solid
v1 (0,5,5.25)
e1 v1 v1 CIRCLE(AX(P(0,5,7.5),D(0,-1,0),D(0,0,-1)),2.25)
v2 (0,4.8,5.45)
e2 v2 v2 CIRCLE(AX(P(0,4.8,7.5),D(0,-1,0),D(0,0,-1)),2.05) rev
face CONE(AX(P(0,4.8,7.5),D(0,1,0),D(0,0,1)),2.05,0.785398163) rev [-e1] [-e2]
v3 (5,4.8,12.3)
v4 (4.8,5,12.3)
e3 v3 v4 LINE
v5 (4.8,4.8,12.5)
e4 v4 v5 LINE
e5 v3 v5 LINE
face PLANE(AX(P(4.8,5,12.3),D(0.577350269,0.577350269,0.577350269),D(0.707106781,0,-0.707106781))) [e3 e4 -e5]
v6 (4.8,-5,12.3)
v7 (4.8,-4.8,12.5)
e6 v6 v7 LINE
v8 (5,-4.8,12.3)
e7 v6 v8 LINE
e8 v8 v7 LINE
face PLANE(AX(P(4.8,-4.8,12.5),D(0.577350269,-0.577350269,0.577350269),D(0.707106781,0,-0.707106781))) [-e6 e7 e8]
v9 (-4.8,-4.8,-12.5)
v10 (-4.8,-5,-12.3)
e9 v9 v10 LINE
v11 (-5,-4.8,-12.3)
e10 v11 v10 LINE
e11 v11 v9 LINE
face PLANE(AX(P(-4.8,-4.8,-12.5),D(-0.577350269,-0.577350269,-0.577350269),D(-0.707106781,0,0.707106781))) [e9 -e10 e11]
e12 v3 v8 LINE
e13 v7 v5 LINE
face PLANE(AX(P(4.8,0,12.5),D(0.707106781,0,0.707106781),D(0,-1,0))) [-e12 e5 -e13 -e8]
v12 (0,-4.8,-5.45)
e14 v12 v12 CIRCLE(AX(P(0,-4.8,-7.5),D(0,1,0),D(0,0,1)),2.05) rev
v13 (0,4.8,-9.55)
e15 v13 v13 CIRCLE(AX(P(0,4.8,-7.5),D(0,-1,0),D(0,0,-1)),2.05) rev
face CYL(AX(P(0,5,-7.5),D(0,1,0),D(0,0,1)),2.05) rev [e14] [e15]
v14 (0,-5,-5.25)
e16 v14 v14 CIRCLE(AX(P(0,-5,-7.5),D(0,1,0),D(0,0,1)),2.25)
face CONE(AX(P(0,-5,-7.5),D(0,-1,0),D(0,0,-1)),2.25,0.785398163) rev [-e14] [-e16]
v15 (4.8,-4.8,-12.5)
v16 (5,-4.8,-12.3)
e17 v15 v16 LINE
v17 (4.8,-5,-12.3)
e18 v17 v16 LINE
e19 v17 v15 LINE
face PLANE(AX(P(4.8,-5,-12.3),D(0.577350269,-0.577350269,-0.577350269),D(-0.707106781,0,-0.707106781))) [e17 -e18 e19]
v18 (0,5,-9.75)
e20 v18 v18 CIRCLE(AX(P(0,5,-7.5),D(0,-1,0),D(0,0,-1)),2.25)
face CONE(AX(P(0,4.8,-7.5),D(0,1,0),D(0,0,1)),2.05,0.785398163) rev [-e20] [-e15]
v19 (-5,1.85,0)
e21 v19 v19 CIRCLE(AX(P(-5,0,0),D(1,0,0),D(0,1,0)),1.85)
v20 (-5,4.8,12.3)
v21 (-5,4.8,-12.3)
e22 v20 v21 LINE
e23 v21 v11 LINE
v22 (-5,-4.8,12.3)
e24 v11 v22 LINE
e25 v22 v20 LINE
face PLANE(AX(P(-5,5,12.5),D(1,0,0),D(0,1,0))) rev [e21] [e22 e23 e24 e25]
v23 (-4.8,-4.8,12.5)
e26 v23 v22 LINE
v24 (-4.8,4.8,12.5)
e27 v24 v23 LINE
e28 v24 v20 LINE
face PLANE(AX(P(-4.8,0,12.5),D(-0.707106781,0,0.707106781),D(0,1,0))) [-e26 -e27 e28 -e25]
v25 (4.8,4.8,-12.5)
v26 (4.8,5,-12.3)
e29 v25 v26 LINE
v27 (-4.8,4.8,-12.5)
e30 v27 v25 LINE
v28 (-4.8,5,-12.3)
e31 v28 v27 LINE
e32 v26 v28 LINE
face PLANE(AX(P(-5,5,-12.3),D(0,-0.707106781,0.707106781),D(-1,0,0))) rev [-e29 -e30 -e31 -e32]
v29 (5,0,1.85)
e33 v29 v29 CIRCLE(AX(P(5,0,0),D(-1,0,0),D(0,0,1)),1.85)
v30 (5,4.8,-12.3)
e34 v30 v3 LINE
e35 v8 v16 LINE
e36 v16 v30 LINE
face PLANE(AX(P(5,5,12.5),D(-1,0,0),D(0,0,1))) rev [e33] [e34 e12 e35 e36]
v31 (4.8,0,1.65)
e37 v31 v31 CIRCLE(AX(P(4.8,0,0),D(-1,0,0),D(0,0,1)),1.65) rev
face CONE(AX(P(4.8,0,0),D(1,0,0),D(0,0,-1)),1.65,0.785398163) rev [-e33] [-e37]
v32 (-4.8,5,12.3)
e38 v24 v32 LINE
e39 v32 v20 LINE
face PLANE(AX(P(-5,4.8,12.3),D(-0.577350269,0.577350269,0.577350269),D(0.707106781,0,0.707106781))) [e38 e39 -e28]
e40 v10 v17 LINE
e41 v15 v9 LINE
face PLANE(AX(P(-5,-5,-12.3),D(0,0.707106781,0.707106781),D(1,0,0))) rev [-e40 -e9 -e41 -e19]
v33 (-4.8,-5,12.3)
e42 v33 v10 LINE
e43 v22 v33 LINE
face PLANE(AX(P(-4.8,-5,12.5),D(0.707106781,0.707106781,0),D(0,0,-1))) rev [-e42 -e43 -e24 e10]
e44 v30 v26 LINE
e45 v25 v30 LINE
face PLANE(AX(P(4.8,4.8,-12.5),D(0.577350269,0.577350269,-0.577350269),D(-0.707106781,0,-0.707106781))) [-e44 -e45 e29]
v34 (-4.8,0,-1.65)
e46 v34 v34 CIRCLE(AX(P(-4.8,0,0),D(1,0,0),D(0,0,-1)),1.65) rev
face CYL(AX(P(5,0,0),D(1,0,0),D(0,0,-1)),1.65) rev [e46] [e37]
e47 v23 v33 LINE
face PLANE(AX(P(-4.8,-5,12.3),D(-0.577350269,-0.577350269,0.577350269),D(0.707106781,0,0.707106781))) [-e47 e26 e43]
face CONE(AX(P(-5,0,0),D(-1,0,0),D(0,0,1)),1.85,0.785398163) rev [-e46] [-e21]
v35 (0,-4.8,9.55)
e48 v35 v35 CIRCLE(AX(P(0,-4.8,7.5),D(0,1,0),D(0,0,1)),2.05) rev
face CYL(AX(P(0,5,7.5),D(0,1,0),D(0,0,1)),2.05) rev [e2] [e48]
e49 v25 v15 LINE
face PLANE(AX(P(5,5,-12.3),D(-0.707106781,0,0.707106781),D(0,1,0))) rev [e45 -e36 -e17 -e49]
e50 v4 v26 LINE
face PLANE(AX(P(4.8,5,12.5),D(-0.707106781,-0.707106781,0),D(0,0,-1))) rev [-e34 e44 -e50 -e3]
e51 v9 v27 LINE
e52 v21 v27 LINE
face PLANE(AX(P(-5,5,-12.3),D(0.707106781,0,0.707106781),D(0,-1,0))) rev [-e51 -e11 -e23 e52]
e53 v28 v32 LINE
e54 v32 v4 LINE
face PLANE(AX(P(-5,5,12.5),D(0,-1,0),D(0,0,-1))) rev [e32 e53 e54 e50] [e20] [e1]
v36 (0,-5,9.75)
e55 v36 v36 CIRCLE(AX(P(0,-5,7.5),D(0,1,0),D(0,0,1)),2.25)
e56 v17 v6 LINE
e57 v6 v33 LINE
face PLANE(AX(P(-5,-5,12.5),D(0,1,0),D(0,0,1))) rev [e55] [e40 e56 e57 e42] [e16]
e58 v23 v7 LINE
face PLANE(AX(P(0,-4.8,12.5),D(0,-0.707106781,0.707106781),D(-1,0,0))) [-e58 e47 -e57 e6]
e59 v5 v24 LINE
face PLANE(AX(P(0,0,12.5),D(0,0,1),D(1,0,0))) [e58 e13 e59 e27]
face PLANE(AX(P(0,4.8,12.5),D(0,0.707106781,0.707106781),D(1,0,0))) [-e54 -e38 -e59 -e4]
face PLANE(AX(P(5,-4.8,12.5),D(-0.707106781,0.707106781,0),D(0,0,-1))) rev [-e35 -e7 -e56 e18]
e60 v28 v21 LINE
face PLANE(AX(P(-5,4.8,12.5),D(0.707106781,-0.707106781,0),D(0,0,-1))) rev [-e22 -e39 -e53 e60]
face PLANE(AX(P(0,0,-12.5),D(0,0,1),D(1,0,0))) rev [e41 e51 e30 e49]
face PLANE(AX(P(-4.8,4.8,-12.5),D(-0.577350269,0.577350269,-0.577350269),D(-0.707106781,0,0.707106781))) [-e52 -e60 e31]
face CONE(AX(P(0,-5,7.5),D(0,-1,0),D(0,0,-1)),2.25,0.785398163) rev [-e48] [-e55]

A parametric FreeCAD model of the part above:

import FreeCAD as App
import Part
import Sketcher
Q = App.Units.Quantity

doc = App.newDocument("Part")
body = doc.addObject("PartDesign::Body", "Body")

sketch1 = body.newObject("Sketcher::SketchObject", "Sketch")
sketch1.AttachmentSupport = (doc.getObject("XY_Plane"), [""])
sketch1.MapMode = "FlatFace"
sketch1.addGeometry(Part.LineSegment(App.Vector(-5, 5, 0), App.Vector(-5, -5, 0)), False)
sketch1.addGeometry(Part.LineSegment(App.Vector(-5, -5, 0), App.Vector(5, -5, 0)), False)
sketch1.addGeometry(Part.LineSegment(App.Vector(5, -5, 0), App.Vector(5, 5, 0)), False)
sketch1.addGeometry(Part.LineSegment(App.Vector(5, 5, 0), App.Vector(-5, 5, 0)), False)
sketch1.addConstraint(Sketcher.Constraint("Coincident", 0, 2, 1, 1))
sketch1.addConstraint(Sketcher.Constraint("Coincident", 1, 2, 2, 1))
sketch1.addConstraint(Sketcher.Constraint("Coincident", 2, 2, 3, 1))
sketch1.addConstraint(Sketcher.Constraint("Coincident", 3, 2, 0, 1))
sketch1.addConstraint(Sketcher.Constraint("Vertical", 0))
sketch1.addConstraint(Sketcher.Constraint("Horizontal", 1))
sketch1.addConstraint(Sketcher.Constraint("Vertical", 2))
sketch1.addConstraint(Sketcher.Constraint("Horizontal", 3))
sketch1.addConstraint(Sketcher.Constraint("Symmetric", 0, 2, 2, 2, -1, 1))
sketch1.addConstraint(Sketcher.Constraint("Equal", 3, 0))
sketch1.addConstraint(Sketcher.Constraint("DistanceX", 1, 1, 1, 2, Q("10 mm")))
pad1 = body.newObject("PartDesign::Pad", "Pad")
pad1.Profile = sketch1
pad1.Length = 25
pad1.Midplane = True

sketch2 = body.newObject("Sketcher::SketchObject", "Sketch001")
sketch2.AttachmentSupport = (doc.getObject("YZ_Plane"), [""])
sketch2.MapMode = "FlatFace"
sketch2.AttachmentOffset = App.Placement(App.Vector(0, 0, 5), App.Rotation())
sketch2.addGeometry(Part.Circle(App.Vector(0, 0, 0), App.Vector(0, 0, 1), 1.6), False)
sketch2.addConstraint(Sketcher.Constraint("Coincident", 0, 3, -1, 1))
sketch2.addConstraint(Sketcher.Constraint("Diameter", 0, Q("3.3 mm")))
doc.recompute()
hole = body.newObject("PartDesign::Hole", "Hole")
hole.Profile = sketch2
hole.ThreadType = "None"
hole.Diameter = 3.3
hole.DepthType = "ThroughAll"

sketch3 = body.newObject("Sketcher::SketchObject", "Sketch002")
sketch3.AttachmentSupport = (doc.getObject("XZ_Plane"), [""])
sketch3.MapMode = "FlatFace"
sketch3.AttachmentOffset = App.Placement(App.Vector(0, 0, -5), App.Rotation())
sketch3.addGeometry(Part.Circle(App.Vector(0, 7.5, 0), App.Vector(0, 0, 1), 2), False)
sketch3.addGeometry(Part.Circle(App.Vector(0, -7.5, 0), App.Vector(0, 0, 1), 2), False)
sketch3.addConstraint(Sketcher.Constraint("Equal", 0, 1))
sketch3.addConstraint(Sketcher.Constraint("Symmetric", 0, 3, 1, 3, -1, 1))
sketch3.addConstraint(Sketcher.Constraint("PointOnObject", 0, 3, -2))
sketch3.addConstraint(Sketcher.Constraint("Diameter", 0, Q("4.1 mm")))
sketch3.addConstraint(Sketcher.Constraint("DistanceY", 1, 3, 0, 3, Q("15 mm")))
doc.recompute()
hole2 = body.newObject("PartDesign::Hole", "Hole001")
hole2.Profile = sketch3
hole2.ThreadType = "None"
hole2.Diameter = 4.1
hole2.DepthType = "ThroughAll"
hole2.Reversed = True
doc.recompute()

chamfer = body.newObject("PartDesign::Chamfer", "Chamfer")
chamfer.Base = (hole2, ["Edge1"])
chamfer.UseAllEdges = True
chamfer.Size = 0.2

doc.recompute()
